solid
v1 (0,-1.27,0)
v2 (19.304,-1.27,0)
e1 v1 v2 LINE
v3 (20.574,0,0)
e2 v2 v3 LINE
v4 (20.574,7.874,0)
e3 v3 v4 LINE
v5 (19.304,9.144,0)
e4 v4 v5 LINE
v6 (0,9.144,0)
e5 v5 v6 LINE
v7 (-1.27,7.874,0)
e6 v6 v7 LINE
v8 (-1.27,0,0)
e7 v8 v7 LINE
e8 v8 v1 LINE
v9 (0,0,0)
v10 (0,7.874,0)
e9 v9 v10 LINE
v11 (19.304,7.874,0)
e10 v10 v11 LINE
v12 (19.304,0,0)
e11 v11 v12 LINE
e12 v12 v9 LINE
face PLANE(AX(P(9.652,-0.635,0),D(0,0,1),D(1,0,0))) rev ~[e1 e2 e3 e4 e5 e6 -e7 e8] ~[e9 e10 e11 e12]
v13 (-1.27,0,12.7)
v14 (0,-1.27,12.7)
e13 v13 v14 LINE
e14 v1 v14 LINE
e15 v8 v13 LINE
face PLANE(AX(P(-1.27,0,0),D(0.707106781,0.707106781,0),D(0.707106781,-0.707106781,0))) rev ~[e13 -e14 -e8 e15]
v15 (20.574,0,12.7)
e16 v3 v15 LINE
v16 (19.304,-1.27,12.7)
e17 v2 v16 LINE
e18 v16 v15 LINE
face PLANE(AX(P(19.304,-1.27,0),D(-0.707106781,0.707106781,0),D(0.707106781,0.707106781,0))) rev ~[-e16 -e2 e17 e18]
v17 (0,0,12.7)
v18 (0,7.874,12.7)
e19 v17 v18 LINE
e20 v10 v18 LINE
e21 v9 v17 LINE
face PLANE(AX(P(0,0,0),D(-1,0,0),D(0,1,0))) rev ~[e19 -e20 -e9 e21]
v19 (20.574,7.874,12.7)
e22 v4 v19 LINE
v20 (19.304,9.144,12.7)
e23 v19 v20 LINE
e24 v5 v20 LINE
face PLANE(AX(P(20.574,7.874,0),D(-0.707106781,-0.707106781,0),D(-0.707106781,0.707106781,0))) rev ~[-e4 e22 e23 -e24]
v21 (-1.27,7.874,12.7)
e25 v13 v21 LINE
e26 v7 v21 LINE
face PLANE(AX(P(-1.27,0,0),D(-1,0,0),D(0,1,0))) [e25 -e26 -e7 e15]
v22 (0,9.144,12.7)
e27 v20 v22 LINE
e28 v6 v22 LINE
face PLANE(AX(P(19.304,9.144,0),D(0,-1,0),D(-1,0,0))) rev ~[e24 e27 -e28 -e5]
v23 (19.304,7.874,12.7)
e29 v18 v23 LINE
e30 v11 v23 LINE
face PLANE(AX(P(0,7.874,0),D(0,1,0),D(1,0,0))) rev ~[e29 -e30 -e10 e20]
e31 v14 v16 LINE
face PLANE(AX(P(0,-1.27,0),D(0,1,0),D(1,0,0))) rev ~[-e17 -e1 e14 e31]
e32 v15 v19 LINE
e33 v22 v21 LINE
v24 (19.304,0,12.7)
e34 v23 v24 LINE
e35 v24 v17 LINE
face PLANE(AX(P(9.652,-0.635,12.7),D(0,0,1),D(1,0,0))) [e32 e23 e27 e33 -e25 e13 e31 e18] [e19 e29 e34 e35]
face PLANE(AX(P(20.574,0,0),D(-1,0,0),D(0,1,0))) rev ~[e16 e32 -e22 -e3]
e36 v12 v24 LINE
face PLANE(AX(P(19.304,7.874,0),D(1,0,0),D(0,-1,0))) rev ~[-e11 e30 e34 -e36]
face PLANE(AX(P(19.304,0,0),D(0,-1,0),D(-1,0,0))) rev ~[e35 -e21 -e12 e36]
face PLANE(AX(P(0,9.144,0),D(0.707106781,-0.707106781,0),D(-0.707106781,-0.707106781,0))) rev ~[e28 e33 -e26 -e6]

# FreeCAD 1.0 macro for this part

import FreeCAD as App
import Part
import Sketcher
Q = App.Units.Quantity

doc = App.newDocument("Part")
params = doc.addObject("Spreadsheet::Sheet", "Params")
for row, (alias, value) in enumerate([
    ("sketch1_width", "0.76 in"),
    ("sketch1_height", "0.31 in"),
    ("pad1_length", "0.5 in"),
    ("sketch2_width", "0.76 in"),
    ("sketch2_height", "0.31 in"),
    ("pad2_length", "0.5 in"),
], start=1):
    params.set(f"A{row}", alias)
    params.set(f"B{row}", "=" + value)
    params.setAlias(f"B{row}", alias)

body = doc.addObject("PartDesign::Body", "Body")

# Sketch on XY plane
sketch1 = doc.addObject("Sketcher::SketchObject", "Sketch")
body.addObject(sketch1)
sketch1.AttachmentSupport = (doc.XY_Plane, [""])
sketch1.MapMode = "FlatFace"
sketch1.addGeometry(Part.LineSegment(App.Vector(-1.3, 7.9, 0), App.Vector(-1.3, 0, 0)), False)
sketch1.addGeometry(Part.LineSegment(App.Vector(-1.3, 0, 0), App.Vector(0, -1.3, 0)), False)
sketch1.addGeometry(Part.LineSegment(App.Vector(0, -1.3, 0), App.Vector(19.3, -1.3, 0)), False)
sketch1.addGeometry(Part.LineSegment(App.Vector(19.3, -1.3, 0), App.Vector(20.6, 0, 0)), False)
sketch1.addGeometry(Part.LineSegment(App.Vector(20.6, 0, 0), App.Vector(20.6, 7.9, 0)), False)
sketch1.addGeometry(Part.LineSegment(App.Vector(20.6, 7.9, 0), App.Vector(19.3, 9.1, 0)), False)
sketch1.addGeometry(Part.LineSegment(App.Vector(19.3, 9.1, 0), App.Vector(0, 9.1, 0)), False)
sketch1.addGeometry(Part.LineSegment(App.Vector(0, 9.1, 0), App.Vector(-1.3, 7.9, 0)), False)
sketch1.addGeometry(Part.LineSegment(App.Vector(19.3, 0, 0), App.Vector(0, 0, 0)), False)
sketch1.addGeometry(Part.LineSegment(App.Vector(0, 0, 0), App.Vector(0, 7.9, 0)), False)
sketch1.addGeometry(Part.LineSegment(App.Vector(0, 7.9, 0), App.Vector(19.3, 7.9, 0)), False)
sketch1.addGeometry(Part.LineSegment(App.Vector(19.3, 7.9, 0), App.Vector(19.3, 0, 0)), False)
sketch1.addConstraint(Sketcher.Constraint("Coincident", 0, 2, 1, 1))
sketch1.addConstraint(Sketcher.Constraint("Coincident", 1, 2, 2, 1))
sketch1.addConstraint(Sketcher.Constraint("Coincident", 2, 2, 3, 1))
sketch1.addConstraint(Sketcher.Constraint("Coincident", 3, 2, 4, 1))
sketch1.addConstraint(Sketcher.Constraint("Coincident", 4, 2, 5, 1))
sketch1.addConstraint(Sketcher.Constraint("Coincident", 5, 2, 6, 1))
sketch1.addConstraint(Sketcher.Constraint("Coincident", 6, 2, 7, 1))
sketch1.addConstraint(Sketcher.Constraint("Coincident", 7, 2, 0, 1))
sketch1.addConstraint(Sketcher.Constraint("Coincident", 8, 2, 9, 1))
sketch1.addConstraint(Sketcher.Constraint("Coincident", 9, 2, 10, 1))
sketch1.addConstraint(Sketcher.Constraint("Coincident", 10, 2, 11, 1))
sketch1.addConstraint(Sketcher.Constraint("Coincident", 11, 2, 8, 1))
sketch1.addConstraint(Sketcher.Constraint("Vertical", 0))
sketch1.addConstraint(Sketcher.Constraint("Horizontal", 2))
sketch1.addConstraint(Sketcher.Constraint("Vertical", 4))
sketch1.addConstraint(Sketcher.Constraint("Horizontal", 6))
sketch1.addConstraint(Sketcher.Constraint("Horizontal", 8))
sketch1.addConstraint(Sketcher.Constraint("Vertical", 9))
sketch1.addConstraint(Sketcher.Constraint("Horizontal", 10))
sketch1.addConstraint(Sketcher.Constraint("Vertical", 11))
sketch1.addConstraint(Sketcher.Constraint("Coincident", 8, 2, -1, 1))
sketch1.addConstraint(Sketcher.Constraint("PointOnObject", 0, 2, -1))
sketch1.addConstraint(Sketcher.Constraint("PointOnObject", 1, 2, -2))
sketch1.addConstraint(Sketcher.Constraint("PointOnObject", 3, 2, -1))
sketch1.addConstraint(Sketcher.Constraint("PointOnObject", 6, 2, -2))
sketch1.addConstraint(Sketcher.Constraint("Perpendicular", 1, 3))
sketch1.addConstraint(Sketcher.Constraint("Perpendicular", 3, 5))
sketch1.addConstraint(Sketcher.Constraint("Perpendicular", 5, 7))
sketch1.addConstraint(Sketcher.Constraint("Horizontal", 4, 2, 7, 2))
sketch1.addConstraint(Sketcher.Constraint("Horizontal", 7, 2, 9, 2))
sketch1.addConstraint(Sketcher.Constraint("Vertical", 2, 2, 5, 2))
sketch1.addConstraint(Sketcher.Constraint("Vertical", 5, 2, 10, 2))
sketch1.addConstraint(Sketcher.Constraint("DistanceX", 2, 1, 2, 2, Q("0.76 in")))
sketch1.addConstraint(Sketcher.Constraint("DistanceY", 0, 2, 0, 1, Q("0.31 in")))
sketch1.addConstraint(Sketcher.Constraint("DistanceX", 0, 2, -1, 1, Q("0.05 in")))
sketch1.setExpression("Constraints[32]", "Params.sketch1_width")
sketch1.setExpression("Constraints[33]", "Params.sketch1_height")
pad1 = doc.addObject("PartDesign::Pad", "Pad")
body.addObject(pad1)
pad1.Profile = sketch1
pad1.setExpression("Length", "Params.pad1_length")

# Sketch on XY plane
sketch2 = doc.addObject("Sketcher::SketchObject", "Sketch001")
body.addObject(sketch2)
sketch2.AttachmentSupport = (doc.XY_Plane, [""])
sketch2.MapMode = "FlatFace"
sketch2.addGeometry(Part.LineSegment(App.Vector(20.6, 0, 0), App.Vector(20.6, 7.9, 0)), False)
sketch2.addGeometry(Part.LineSegment(App.Vector(20.6, 7.9, 0), App.Vector(19.3, 9.1, 0)), False)
sketch2.addGeometry(Part.LineSegment(App.Vector(19.3, 9.1, 0), App.Vector(0, 9.1, 0)), False)
sketch2.addGeometry(Part.LineSegment(App.Vector(0, 9.1, 0), App.Vector(-1.3, 7.9, 0)), False)
sketch2.addGeometry(Part.LineSegment(App.Vector(-1.3, 7.9, 0), App.Vector(-1.3, 0, 0)), False)
sketch2.addGeometry(Part.LineSegment(App.Vector(-1.3, 0, 0), App.Vector(0, -1.3, 0)), False)
sketch2.addGeometry(Part.LineSegment(App.Vector(0, -1.3, 0), App.Vector(19.3, -1.3, 0)), False)
sketch2.addGeometry(Part.LineSegment(App.Vector(19.3, -1.3, 0), App.Vector(20.6, 0, 0)), False)
sketch2.addGeometry(Part.LineSegment(App.Vector(19.3, 7.9, 0), App.Vector(19.3, 0, 0)), False)
sketch2.addGeometry(Part.LineSegment(App.Vector(19.3, 0, 0), App.Vector(0, 0, 0)), False)
sketch2.addGeometry(Part.LineSegment(App.Vector(0, 0, 0), App.Vector(0, 7.9, 0)), False)
sketch2.addGeometry(Part.LineSegment(App.Vector(0, 7.9, 0), App.Vector(19.3, 7.9, 0)), False)
sketch2.addConstraint(Sketcher.Constraint("Coincident", 0, 2, 1, 1))
sketch2.addConstraint(Sketcher.Constraint("Coincident", 1, 2, 2, 1))
sketch2.addConstraint(Sketcher.Constraint("Coincident", 2, 2, 3, 1))
sketch2.addConstraint(Sketcher.Constraint("Coincident", 3, 2, 4, 1))
sketch2.addConstraint(Sketcher.Constraint("Coincident", 4, 2, 5, 1))
sketch2.addConstraint(Sketcher.Constraint("Coincident", 5, 2, 6, 1))
sketch2.addConstraint(Sketcher.Constraint("Coincident", 6, 2, 7, 1))
sketch2.addConstraint(Sketcher.Constraint("Coincident", 7, 2, 0, 1))
sketch2.addConstraint(Sketcher.Constraint("Coincident", 8, 2, 9, 1))
sketch2.addConstraint(Sketcher.Constraint("Coincident", 9, 2, 10, 1))
sketch2.addConstraint(Sketcher.Constraint("Coincident", 10, 2, 11, 1))
sketch2.addConstraint(Sketcher.Constraint("Coincident", 11, 2, 8, 1))
sketch2.addConstraint(Sketcher.Constraint("Vertical", 0))
sketch2.addConstraint(Sketcher.Constraint("Horizontal", 2))
sketch2.addConstraint(Sketcher.Constraint("Vertical", 4))
sketch2.addConstraint(Sketcher.Constraint("Horizontal", 6))
sketch2.addConstraint(Sketcher.Constraint("Vertical", 8))
sketch2.addConstraint(Sketcher.Constraint("Horizontal", 9))
sketch2.addConstraint(Sketcher.Constraint("Vertical", 10))
sketch2.addConstraint(Sketcher.Constraint("Horizontal", 11))
sketch2.addConstraint(Sketcher.Constraint("Coincident", 9, 2, -1, 1))
sketch2.addConstraint(Sketcher.Constraint("PointOnObject", 2, 2, -2))
sketch2.addConstraint(Sketcher.Constraint("PointOnObject", 4, 2, -1))
sketch2.addConstraint(Sketcher.Constraint("PointOnObject", 5, 2, -2))
sketch2.addConstraint(Sketcher.Constraint("PointOnObject", 7, 2, -1))
sketch2.addConstraint(Sketcher.Constraint("Perpendicular", 1, 3))
sketch2.addConstraint(Sketcher.Constraint("Perpendicular", 3, 5))
sketch2.addConstraint(Sketcher.Constraint("Perpendicular", 5, 7))
sketch2.addConstraint(Sketcher.Constraint("Horizontal", 0, 2, 3, 2))
sketch2.addConstraint(Sketcher.Constraint("Horizontal", 3, 2, 10, 2))
sketch2.addConstraint(Sketcher.Constraint("Vertical", 1, 2, 6, 2))
sketch2.addConstraint(Sketcher.Constraint("Vertical", 6, 2, 8, 2))
sketch2.addConstraint(Sketcher.Constraint("DistanceX", 2, 2, 2, 1, Q("0.76 in")))
sketch2.addConstraint(Sketcher.Constraint("DistanceY", 0, 1, 0, 2, Q("0.31 in")))
sketch2.addConstraint(Sketcher.Constraint("DistanceX", -1, 1, 0, 2, Q("0.81 in")))
sketch2.setExpression("Constraints[32]", "Params.sketch2_width")
sketch2.setExpression("Constraints[33]", "Params.sketch2_height")
pad2 = doc.addObject("PartDesign::Pad", "Pad001")
body.addObject(pad2)
pad2.Profile = sketch2
pad2.setExpression("Length", "Params.pad2_length")

doc.recompute()
